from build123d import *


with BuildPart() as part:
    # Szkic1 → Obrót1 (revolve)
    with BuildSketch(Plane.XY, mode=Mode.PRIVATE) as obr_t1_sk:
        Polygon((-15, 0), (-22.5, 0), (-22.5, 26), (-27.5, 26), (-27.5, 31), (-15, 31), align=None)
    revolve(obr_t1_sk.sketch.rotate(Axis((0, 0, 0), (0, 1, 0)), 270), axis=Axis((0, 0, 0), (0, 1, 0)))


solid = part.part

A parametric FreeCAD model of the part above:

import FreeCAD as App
import Part
import Sketcher
from FreeCAD import Vector
Q = App.Units.Quantity


def add_polygon(sketch, points):
    """Adds a closed chain of lines whose ends are joined by coincident constraints."""
    first, n = sketch.GeometryCount, len(points)
    for a, b in zip(points, points[1:] + points[:1]):
        sketch.addGeometry(Part.LineSegment(App.Vector(*a, 0), App.Vector(*b, 0)), False)
    for i in range(n):
        sketch.addConstraint(Sketcher.Constraint("Coincident", first + i, 2, first + (i + 1) % n, 1))

doc = App.newDocument("Part")
body = doc.addObject("PartDesign::Body", "Body")

# Sketch on XY plane
sketch1 = body.newObject("Sketcher::SketchObject", "Sketch")
sketch1.AttachmentSupport = (doc.getObject("XY_Plane"), [""])
sketch1.MapMode = "FlatFace"
add_polygon(sketch1, [(-22.5, 0), (-15, 0), (-15, 31), (-27.5, 31), (-27.5, 26), (-22.5, 26)])  # lines 0-5
sketch1.addConstraint([
    Sketcher.Constraint("Horizontal", 0),
    Sketcher.Constraint("Vertical", 1),
    Sketcher.Constraint("Horizontal", 2),
    Sketcher.Constraint("Vertical", 3),
    Sketcher.Constraint("Horizontal", 4),
    Sketcher.Constraint("Vertical", 5),
    Sketcher.Constraint("PointOnObject", 0, 2, -1),
    Sketcher.Constraint("Equal", 4, 3),
    Sketcher.Constraint("DistanceX", 4, 1, 4, 2, Q("5 mm")),
    Sketcher.Constraint("DistanceY", 1, 1, 1, 2, Q("31 mm")),
    Sketcher.Constraint("DistanceX", 0, 1, 0, 2, Q("7.5 mm")),
    Sketcher.Constraint("DistanceX", 0, 2, -1, 1, Q("15 mm")),
])
revolution = body.newObject("PartDesign::Revolution", "Revolution")
revolution.Profile = sketch1
revolution.ReferenceAxis = (sketch1, ["V_Axis"])
revolution.Angle = 360

doc.recompute()
